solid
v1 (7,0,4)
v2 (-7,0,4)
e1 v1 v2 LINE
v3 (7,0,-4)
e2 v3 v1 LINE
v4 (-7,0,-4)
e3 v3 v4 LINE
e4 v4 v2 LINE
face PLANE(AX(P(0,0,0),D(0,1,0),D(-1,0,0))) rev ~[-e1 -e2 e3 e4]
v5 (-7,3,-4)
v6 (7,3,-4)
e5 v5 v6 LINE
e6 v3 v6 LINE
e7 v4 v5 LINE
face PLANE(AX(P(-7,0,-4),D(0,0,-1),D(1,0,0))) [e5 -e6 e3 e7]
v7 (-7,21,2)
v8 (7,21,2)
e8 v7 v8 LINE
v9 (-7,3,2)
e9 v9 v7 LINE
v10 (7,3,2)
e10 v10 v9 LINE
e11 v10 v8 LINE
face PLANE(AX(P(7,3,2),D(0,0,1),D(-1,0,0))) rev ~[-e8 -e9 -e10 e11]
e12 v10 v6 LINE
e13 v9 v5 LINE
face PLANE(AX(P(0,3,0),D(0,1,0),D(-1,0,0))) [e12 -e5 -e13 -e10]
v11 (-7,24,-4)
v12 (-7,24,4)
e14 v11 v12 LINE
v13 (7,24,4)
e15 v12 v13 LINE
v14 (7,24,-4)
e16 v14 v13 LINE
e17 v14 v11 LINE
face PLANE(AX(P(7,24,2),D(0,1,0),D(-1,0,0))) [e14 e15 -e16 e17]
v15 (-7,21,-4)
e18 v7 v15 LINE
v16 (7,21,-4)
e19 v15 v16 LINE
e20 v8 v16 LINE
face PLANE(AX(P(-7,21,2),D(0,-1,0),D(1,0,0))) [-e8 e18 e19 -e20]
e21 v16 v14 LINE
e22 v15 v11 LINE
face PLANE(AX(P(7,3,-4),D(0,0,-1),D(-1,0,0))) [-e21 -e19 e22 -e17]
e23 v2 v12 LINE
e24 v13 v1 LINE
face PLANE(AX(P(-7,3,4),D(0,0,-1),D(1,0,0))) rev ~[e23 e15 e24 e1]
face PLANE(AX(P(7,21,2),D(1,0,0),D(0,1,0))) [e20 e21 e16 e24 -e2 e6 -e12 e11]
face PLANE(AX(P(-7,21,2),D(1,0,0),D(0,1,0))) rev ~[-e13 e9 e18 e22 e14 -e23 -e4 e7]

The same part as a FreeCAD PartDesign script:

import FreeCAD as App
import Part
import Sketcher

V = App.Vector

doc = App.newDocument("Part")
body = doc.addObject("PartDesign::Body", "Body")

sketch1 = body.newObject("Sketcher::SketchObject", "Sketch")
sketch1.AttachmentSupport = (doc.getObject("XZ_Plane"), [""])
sketch1.MapMode = "FlatFace"
sketch1.addGeometry([
    Part.LineSegment(V(-7, -4, 0), V(-7, 4, 0)),
    Part.LineSegment(V(-7, 4, 0), V(7, 4, 0)),
    Part.LineSegment(V(7, 4, 0), V(7, -4, 0)),
    Part.LineSegment(V(7, -4, 0), V(-7, -4, 0)),
], False)
sketch1.addConstraint([
    Sketcher.Constraint("Coincident", 0, 2, 1, 1),
    Sketcher.Constraint("Coincident", 1, 2, 2, 1),
    Sketcher.Constraint("Coincident", 2, 2, 3, 1),
    Sketcher.Constraint("Coincident", 3, 2, 0, 1),
    Sketcher.Constraint("Vertical", 0),
    Sketcher.Constraint("Horizontal", 1),
    Sketcher.Constraint("Vertical", 2),
    Sketcher.Constraint("Horizontal", 3),
    Sketcher.Constraint("Symmetric", 0, 2, 2, 2, -1, 1),
    Sketcher.Constraint("DistanceX", 1, 1, 1, 2, 14.0),
    Sketcher.Constraint("DistanceY", 0, 1, 0, 2, 8.0),
])
pad1 = body.newObject("PartDesign::Pad", "Pad")
pad1.Profile = sketch1
pad1.Length = 3
pad1.Reversed = True

sketch2 = body.newObject("Sketcher::SketchObject", "Sketch001")
sketch2.AttachmentSupport = (doc.getObject("XZ_Plane"), [""])
sketch2.MapMode = "FlatFace"
sketch2.AttachmentOffset = App.Placement(V(0, 0, -3), App.Rotation())
sketch2.addGeometry([
    Part.LineSegment(V(7, 2, 0), V(-7, 2, 0)),
    Part.LineSegment(V(-7, 2, 0), V(-7, 4, 0)),
    Part.LineSegment(V(-7, 4, 0), V(7, 4, 0)),
    Part.LineSegment(V(7, 4, 0), V(7, 2, 0)),
], False)
sketch2.addConstraint([
    Sketcher.Constraint("Coincident", 0, 2, 1, 1),
    Sketcher.Constraint("Coincident", 1, 2, 2, 1),
    Sketcher.Constraint("Coincident", 2, 2, 3, 1),
    Sketcher.Constraint("Coincident", 3, 2, 0, 1),
    Sketcher.Constraint("Horizontal", 0),
    Sketcher.Constraint("Vertical", 1),
    Sketcher.Constraint("Horizontal", 2),
    Sketcher.Constraint("Vertical", 3),
    Sketcher.Constraint("DistanceY", 1, 1, 1, 2, 2.0),
    Sketcher.Constraint("DistanceY", -1, 1, 0, 2, 2.0),
    Sketcher.Constraint("DistanceX", 0, 2, 0, 1, 14.0),
    Sketcher.Constraint("DistanceX", 0, 2, -1, 1, 7.0),
])
pad2 = body.newObject("PartDesign::Pad", "Pad001")
pad2.Profile = sketch2
pad2.Length = 21
pad2.Reversed = True

sketch3 = body.newObject("Sketcher::SketchObject", "Sketch002")
sketch3.AttachmentSupport = (doc.getObject("XY_Plane"), [""])
sketch3.MapMode = "FlatFace"
sketch3.AttachmentOffset = App.Placement(V(0, 0, 2), App.Rotation())
sketch3.addGeometry([
    Part.LineSegment(V(7, 24, 0), V(7, 21, 0)),
    Part.LineSegment(V(7, 21, 0), V(-7, 21, 0)),
    Part.LineSegment(V(-7, 21, 0), V(-7, 24, 0)),
    Part.LineSegment(V(-7, 24, 0), V(7, 24, 0)),
], False)
sketch3.addConstraint([
    Sketcher.Constraint("Coincident", 0, 2, 1, 1),
    Sketcher.Constraint("Coincident", 1, 2, 2, 1),
    Sketcher.Constraint("Coincident", 2, 2, 3, 1),
    Sketcher.Constraint("Coincident", 3, 2, 0, 1),
    Sketcher.Constraint("Vertical", 0),
    Sketcher.Constraint("Horizontal", 1),
    Sketcher.Constraint("Vertical", 2),
    Sketcher.Constraint("Horizontal", 3),
    Sketcher.Constraint("DistanceY", 0, 2, 0, 1, 3.0),
    Sketcher.Constraint("DistanceX", 1, 2, 1, 1, 14.0),
    Sketcher.Constraint("DistanceX", -1, 1, 0, 2, 7.0),
    Sketcher.Constraint("DistanceY", -1, 1, 0, 2, 21.0),
])
pad3 = body.newObject("PartDesign::Pad", "Pad002")
pad3.Profile = sketch3
pad3.Length = 6
pad3.Reversed = True

doc.recompute()
